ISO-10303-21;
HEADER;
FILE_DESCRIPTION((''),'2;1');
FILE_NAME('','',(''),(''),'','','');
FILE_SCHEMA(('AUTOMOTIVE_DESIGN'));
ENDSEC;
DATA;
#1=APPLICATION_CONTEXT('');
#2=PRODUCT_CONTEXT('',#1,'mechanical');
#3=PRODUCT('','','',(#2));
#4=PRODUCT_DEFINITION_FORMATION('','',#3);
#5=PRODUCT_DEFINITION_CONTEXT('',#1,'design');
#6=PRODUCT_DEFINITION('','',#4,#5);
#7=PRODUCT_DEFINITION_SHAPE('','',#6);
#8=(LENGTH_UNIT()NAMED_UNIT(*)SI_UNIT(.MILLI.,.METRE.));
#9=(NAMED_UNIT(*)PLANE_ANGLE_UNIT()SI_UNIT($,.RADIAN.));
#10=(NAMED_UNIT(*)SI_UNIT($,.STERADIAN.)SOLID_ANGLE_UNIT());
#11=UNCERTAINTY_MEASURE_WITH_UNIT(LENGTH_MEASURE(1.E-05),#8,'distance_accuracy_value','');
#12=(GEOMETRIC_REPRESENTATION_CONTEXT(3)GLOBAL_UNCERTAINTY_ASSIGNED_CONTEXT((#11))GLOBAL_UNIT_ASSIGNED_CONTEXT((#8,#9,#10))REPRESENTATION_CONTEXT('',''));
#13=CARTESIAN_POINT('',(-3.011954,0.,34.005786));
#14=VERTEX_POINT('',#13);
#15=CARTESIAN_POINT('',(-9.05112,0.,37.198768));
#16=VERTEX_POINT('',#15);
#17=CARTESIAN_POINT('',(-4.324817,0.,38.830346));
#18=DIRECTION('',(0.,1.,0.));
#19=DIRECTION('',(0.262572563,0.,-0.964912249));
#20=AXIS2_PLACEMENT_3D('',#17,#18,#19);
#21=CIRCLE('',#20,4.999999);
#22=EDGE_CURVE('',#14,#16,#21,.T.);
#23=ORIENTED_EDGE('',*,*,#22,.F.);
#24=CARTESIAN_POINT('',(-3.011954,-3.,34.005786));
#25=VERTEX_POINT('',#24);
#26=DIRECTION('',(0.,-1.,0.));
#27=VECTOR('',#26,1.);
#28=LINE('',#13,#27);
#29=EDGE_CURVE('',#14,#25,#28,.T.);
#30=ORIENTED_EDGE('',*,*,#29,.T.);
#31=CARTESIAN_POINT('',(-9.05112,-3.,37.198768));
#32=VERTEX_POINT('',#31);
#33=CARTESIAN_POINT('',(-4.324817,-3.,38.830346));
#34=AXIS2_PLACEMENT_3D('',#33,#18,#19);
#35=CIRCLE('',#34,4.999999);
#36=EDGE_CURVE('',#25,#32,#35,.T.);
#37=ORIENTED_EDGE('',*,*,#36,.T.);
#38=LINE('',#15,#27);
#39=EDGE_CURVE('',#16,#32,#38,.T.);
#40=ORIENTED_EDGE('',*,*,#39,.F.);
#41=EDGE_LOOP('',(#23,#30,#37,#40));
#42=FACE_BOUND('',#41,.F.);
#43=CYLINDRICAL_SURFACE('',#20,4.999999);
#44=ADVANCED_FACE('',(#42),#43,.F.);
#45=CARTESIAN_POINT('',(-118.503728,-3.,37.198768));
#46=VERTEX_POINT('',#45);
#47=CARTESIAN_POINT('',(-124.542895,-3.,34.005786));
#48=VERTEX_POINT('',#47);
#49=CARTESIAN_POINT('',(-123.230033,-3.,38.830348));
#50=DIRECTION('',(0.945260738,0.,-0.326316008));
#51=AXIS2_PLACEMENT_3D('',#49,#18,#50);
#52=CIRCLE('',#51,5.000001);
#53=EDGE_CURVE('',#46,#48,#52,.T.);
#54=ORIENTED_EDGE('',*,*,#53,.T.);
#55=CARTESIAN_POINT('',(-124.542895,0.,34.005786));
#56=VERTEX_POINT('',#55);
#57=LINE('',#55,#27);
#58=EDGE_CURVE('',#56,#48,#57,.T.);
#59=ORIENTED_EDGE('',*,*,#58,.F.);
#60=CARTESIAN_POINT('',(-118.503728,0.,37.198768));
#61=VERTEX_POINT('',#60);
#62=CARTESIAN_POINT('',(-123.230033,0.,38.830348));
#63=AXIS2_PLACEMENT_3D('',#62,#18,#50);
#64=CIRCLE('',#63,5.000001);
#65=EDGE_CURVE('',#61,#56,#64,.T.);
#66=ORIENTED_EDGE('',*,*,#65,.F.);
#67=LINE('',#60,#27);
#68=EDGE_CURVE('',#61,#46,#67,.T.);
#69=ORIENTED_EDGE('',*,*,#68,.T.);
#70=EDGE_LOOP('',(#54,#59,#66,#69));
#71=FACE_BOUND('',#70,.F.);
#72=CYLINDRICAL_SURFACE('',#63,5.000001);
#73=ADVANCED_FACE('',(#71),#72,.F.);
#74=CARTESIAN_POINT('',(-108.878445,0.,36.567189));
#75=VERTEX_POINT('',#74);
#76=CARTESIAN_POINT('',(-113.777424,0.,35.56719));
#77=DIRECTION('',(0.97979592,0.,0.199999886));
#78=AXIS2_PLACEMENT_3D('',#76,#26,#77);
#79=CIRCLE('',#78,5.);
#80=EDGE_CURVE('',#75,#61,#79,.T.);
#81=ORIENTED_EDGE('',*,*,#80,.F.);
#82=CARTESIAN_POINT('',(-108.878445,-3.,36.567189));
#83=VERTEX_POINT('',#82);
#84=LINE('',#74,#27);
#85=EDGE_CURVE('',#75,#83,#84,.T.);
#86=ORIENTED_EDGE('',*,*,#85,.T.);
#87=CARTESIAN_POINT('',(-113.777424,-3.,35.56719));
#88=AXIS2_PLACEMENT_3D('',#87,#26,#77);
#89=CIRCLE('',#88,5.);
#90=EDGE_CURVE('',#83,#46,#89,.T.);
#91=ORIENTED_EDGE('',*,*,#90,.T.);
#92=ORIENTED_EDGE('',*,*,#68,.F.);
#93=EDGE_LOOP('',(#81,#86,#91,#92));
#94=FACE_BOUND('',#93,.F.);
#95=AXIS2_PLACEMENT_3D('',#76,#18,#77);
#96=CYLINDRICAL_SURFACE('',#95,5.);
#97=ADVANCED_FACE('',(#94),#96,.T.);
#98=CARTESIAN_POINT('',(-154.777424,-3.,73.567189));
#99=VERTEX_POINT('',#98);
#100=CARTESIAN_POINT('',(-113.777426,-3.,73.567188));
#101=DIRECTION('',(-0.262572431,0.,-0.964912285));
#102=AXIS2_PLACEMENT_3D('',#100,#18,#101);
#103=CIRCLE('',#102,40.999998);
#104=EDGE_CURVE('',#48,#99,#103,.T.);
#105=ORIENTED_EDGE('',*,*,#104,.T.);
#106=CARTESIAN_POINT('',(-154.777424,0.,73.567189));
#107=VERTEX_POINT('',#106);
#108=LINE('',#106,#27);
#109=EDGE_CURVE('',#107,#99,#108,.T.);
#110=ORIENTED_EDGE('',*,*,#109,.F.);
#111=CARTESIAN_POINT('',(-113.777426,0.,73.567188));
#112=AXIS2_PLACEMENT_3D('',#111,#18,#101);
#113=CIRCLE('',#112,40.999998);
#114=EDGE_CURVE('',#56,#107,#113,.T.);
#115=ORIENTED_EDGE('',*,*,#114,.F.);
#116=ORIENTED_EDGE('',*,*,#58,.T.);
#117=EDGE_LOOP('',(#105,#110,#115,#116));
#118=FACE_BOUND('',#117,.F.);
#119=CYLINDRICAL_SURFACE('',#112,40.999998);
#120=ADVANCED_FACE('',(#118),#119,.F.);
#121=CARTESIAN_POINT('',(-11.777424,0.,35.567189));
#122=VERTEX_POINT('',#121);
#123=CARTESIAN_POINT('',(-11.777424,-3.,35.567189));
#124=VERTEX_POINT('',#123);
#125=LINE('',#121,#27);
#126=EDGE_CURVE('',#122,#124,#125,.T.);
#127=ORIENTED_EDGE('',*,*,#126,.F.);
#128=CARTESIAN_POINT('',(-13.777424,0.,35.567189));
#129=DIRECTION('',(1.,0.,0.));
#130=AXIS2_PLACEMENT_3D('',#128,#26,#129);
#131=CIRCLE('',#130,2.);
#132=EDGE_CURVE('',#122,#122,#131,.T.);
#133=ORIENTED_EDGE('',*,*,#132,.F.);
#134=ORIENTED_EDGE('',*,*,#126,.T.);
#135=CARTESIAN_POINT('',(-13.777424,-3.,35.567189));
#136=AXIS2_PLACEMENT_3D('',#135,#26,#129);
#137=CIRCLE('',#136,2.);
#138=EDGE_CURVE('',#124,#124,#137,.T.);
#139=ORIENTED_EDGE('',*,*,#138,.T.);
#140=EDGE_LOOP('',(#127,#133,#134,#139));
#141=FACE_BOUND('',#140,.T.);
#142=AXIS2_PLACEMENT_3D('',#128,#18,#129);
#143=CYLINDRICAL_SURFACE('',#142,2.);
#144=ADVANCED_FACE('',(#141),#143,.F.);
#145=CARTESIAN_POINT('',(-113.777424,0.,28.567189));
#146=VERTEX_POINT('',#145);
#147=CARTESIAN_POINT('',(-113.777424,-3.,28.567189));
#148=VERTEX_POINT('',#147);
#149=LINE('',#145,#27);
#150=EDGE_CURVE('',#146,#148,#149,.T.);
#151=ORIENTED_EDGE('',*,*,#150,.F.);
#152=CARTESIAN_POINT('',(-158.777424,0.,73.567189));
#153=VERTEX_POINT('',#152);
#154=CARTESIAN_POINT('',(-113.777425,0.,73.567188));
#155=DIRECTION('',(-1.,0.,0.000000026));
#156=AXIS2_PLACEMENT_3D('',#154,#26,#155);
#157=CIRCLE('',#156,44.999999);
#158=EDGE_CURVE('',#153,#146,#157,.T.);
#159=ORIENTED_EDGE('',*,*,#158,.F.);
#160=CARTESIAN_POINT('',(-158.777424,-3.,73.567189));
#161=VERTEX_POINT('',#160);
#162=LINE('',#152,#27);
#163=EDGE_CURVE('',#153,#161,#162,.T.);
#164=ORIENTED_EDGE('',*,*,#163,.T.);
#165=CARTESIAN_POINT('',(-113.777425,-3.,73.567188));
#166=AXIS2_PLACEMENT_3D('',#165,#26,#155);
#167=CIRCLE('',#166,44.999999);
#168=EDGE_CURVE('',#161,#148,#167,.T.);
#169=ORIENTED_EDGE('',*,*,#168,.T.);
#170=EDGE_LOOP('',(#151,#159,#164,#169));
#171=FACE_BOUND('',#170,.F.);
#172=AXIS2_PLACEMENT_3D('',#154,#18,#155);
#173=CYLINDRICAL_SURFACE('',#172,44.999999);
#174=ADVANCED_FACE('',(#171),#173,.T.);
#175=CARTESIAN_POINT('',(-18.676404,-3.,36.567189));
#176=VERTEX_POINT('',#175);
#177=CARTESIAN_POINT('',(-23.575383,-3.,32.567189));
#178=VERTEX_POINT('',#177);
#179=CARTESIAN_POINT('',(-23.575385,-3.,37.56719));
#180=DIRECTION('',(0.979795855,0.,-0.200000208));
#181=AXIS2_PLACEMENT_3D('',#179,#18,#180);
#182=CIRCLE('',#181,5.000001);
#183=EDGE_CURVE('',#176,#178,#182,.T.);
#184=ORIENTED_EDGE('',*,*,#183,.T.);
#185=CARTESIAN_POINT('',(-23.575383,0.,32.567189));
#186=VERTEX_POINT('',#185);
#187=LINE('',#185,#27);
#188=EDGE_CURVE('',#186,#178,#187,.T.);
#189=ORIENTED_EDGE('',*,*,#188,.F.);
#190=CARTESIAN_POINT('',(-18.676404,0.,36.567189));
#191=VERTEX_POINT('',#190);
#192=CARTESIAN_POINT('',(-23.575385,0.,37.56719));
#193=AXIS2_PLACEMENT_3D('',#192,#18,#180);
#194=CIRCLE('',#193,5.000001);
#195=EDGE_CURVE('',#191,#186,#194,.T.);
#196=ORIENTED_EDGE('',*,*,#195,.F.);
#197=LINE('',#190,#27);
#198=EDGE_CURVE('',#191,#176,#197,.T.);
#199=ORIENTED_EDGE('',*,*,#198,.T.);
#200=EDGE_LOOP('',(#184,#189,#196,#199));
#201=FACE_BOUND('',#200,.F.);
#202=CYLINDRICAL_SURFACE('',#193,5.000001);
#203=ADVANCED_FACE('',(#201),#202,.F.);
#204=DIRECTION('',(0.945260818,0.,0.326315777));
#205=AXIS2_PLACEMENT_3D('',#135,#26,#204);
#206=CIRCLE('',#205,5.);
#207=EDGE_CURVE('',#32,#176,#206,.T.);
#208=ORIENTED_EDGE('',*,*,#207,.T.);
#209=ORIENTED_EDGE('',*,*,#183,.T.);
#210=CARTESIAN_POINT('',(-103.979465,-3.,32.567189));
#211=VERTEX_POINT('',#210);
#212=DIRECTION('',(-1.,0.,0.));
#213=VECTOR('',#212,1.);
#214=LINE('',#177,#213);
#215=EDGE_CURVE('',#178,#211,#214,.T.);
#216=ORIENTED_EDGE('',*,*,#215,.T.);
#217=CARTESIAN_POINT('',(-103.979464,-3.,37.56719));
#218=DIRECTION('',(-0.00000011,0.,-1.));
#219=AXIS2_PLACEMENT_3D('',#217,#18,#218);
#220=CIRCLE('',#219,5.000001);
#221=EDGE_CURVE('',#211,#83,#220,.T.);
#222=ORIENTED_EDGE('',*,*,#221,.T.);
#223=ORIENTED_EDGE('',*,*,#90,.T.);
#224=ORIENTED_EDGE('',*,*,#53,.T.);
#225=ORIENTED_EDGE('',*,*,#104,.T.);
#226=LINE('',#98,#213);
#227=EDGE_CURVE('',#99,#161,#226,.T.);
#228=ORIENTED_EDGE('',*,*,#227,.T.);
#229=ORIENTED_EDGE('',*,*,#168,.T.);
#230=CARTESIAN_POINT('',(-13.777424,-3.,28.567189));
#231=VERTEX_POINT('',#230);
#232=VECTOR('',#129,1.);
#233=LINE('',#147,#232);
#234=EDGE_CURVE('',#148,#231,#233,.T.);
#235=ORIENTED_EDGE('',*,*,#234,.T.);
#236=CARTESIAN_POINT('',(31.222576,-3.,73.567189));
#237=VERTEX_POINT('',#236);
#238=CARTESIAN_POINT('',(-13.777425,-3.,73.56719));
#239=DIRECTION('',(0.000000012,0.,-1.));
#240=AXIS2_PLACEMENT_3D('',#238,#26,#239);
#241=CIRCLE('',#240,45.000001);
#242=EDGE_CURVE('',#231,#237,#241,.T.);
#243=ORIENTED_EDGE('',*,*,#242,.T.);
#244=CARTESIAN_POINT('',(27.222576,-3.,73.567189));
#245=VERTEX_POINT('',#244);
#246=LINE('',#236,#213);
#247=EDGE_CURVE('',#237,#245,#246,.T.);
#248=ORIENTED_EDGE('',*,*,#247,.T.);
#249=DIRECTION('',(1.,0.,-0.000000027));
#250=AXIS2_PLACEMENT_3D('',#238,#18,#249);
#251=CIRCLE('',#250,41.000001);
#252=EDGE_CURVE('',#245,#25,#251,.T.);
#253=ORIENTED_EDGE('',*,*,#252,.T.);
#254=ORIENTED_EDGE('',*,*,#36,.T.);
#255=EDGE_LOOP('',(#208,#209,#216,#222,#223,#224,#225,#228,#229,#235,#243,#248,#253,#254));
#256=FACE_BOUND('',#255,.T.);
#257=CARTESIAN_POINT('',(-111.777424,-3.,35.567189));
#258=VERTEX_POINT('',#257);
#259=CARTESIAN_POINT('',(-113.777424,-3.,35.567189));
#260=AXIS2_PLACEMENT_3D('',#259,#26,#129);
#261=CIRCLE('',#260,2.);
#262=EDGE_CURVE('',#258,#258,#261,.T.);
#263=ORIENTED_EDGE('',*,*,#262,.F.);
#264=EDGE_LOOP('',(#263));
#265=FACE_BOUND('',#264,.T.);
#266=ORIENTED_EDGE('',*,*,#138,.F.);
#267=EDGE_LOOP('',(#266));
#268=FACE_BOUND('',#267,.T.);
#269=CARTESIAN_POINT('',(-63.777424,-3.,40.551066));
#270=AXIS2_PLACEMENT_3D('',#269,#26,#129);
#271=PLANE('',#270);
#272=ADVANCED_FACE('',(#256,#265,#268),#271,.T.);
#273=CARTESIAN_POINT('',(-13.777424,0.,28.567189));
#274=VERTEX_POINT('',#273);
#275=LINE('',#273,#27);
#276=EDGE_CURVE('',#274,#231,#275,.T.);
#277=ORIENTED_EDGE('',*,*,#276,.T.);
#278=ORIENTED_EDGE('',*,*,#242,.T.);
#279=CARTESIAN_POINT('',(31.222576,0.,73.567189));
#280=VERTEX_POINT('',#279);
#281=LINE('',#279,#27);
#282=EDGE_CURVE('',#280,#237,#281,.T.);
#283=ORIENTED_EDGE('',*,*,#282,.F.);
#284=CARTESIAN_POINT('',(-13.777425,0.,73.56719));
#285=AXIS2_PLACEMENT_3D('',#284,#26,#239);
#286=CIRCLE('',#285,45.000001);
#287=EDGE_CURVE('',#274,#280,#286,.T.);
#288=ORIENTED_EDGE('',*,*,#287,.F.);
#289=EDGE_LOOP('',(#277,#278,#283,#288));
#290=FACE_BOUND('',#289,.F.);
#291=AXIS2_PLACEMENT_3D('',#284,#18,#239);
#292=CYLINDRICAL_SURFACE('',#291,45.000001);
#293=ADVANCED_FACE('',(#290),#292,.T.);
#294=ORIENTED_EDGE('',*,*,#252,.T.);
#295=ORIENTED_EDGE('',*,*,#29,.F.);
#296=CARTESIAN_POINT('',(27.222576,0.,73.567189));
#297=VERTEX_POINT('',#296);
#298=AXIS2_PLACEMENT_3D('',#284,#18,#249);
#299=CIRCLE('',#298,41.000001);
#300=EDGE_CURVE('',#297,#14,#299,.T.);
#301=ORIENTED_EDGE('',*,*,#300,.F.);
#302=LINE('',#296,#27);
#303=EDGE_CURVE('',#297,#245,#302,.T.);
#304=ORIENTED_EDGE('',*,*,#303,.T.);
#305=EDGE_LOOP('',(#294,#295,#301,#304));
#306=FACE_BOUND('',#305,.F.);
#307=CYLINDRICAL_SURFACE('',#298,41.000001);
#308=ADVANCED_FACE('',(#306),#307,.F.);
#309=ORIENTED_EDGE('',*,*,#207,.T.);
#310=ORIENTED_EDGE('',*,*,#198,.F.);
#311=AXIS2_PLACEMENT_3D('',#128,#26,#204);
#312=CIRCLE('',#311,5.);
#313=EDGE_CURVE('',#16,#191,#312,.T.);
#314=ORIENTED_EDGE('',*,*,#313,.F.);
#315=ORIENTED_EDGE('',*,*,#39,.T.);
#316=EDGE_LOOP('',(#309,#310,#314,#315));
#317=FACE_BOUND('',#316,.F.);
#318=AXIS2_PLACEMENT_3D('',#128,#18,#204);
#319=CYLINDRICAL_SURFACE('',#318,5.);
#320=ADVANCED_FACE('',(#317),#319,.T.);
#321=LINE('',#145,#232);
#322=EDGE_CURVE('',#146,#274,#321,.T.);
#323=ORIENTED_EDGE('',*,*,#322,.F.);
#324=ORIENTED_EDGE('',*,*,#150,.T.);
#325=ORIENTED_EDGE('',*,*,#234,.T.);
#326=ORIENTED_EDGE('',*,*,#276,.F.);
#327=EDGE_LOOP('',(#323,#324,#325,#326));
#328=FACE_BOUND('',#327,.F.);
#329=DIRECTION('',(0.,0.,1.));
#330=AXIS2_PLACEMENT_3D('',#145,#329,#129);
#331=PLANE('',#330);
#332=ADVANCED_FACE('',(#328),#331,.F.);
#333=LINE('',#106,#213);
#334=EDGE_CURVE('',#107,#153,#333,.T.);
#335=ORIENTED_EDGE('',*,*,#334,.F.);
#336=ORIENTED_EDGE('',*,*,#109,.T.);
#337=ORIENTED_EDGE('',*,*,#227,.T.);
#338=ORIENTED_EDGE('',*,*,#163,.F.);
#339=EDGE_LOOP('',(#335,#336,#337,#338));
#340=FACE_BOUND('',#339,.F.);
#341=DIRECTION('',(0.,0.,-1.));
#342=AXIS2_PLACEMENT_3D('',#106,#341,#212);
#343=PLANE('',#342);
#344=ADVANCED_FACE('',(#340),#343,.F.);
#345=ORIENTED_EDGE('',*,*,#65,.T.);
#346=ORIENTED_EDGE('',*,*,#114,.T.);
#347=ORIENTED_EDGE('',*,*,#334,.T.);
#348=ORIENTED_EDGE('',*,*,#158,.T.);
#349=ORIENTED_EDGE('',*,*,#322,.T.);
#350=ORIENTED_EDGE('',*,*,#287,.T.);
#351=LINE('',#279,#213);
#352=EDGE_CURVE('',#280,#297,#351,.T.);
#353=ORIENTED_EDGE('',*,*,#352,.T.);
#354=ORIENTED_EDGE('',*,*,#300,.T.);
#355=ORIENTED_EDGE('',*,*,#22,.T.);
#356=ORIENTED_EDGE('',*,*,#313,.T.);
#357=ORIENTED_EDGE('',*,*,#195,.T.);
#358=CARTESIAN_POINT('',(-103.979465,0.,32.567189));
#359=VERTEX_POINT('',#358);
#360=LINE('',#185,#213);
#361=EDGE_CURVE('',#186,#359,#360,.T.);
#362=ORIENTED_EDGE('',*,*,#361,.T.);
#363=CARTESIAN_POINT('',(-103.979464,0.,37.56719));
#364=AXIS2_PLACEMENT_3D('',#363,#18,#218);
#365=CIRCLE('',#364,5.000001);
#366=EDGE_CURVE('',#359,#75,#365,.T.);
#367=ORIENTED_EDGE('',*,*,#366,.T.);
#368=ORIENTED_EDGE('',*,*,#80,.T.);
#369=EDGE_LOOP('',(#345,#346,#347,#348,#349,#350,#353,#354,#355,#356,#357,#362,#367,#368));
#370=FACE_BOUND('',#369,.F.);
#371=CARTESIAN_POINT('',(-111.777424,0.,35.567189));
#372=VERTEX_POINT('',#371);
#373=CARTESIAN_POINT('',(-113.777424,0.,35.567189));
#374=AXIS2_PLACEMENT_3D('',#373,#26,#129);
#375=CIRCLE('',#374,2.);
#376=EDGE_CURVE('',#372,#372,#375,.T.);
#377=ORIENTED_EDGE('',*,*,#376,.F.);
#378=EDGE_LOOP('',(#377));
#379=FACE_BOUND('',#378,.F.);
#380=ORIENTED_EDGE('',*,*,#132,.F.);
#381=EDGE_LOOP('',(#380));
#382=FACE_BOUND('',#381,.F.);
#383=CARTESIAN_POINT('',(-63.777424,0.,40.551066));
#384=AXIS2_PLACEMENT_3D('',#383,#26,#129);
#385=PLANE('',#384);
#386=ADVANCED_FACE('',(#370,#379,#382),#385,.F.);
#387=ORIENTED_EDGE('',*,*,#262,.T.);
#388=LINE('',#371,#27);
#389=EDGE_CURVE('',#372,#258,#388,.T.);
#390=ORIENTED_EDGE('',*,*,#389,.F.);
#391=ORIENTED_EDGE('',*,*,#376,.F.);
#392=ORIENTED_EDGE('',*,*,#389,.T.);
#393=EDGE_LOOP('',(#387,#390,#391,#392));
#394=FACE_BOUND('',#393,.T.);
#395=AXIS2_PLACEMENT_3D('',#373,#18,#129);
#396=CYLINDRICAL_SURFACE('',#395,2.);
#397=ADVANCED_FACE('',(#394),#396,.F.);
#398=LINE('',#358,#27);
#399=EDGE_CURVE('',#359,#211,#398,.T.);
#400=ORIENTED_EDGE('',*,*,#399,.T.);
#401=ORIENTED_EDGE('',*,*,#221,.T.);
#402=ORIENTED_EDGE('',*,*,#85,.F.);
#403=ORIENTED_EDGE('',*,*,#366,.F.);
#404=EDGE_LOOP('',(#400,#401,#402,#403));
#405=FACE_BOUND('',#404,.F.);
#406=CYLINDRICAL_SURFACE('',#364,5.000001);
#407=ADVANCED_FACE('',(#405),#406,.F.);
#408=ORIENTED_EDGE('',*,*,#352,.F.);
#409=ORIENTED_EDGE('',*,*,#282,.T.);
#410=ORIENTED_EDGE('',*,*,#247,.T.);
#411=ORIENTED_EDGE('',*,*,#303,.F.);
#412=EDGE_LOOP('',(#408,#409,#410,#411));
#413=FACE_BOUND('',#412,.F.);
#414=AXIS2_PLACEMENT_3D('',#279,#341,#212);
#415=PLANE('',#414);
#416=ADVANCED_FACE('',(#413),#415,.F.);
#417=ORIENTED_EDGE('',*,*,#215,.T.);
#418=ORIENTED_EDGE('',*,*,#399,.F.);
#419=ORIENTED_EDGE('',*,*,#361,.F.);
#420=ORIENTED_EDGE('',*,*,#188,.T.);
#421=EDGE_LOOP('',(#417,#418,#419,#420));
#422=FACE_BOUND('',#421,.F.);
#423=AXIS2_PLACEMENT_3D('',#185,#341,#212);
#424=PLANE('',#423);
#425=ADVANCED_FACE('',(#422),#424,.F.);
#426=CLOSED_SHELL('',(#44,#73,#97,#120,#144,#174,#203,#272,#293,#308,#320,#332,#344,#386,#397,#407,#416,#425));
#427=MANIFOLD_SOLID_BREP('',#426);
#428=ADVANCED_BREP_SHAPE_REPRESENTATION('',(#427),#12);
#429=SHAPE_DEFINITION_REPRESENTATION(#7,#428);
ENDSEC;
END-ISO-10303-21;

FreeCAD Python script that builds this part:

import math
import FreeCAD as App
import Part
import Sketcher
from FreeCAD import Vector

doc = App.newDocument("Part")
params = doc.addObject("Spreadsheet::Sheet", "Params")
for row, (alias, value) in enumerate([
    ("sketch1_diameter", "4 mm"),
    ("sketch1_radius", "44.999999 mm"),
    ("sketch1_radius2", "41.000001 mm"),
    ("sketch1_radius3", "4.999999 mm"),
    ("sketch1_width", "100 mm"),
    ("pad1_length", "3 mm"),
], start=1):
    params.set(f"A{row}", alias)
    params.set(f"B{row}", "=" + value)
    params.setAlias(f"B{row}", alias)

body = doc.addObject("PartDesign::Body", "Body")

# Sketch on XZ plane
sketch1 = body.newObject("Sketcher::SketchObject", "Sketch")
sketch1.AttachmentSupport = (doc.getObject("XZ_Plane"), [""])
sketch1.MapMode = "FlatFace"
sketch1.addGeometry([
    Part.LineSegment(Vector(-154.8, 73.6, 0), Vector(-158.8, 73.6, 0)),  # 0
    Part.ArcOfCircle(Part.Circle(Vector(-113.8, 73.6, 0), Vector(0, 0, 1), 45), math.radians(180), math.radians(270)),  # 1
    Part.LineSegment(Vector(-113.8, 28.6, 0), Vector(-13.8, 28.6, 0)),  # 2
    Part.ArcOfCircle(Part.Circle(Vector(-13.8, 73.6, 0), Vector(0, 0, 1), 45), math.radians(-90), math.radians(0)),  # 3
    Part.LineSegment(Vector(31.2, 73.6, 0), Vector(27.2, 73.6, 0)),  # 4
    Part.ArcOfCircle(Part.Circle(Vector(-13.8, 73.6, 0), Vector(0, 0, 1), 41), math.radians(-75), math.radians(0)),  # 5
    Part.ArcOfCircle(Part.Circle(Vector(-4.3, 38.8, 0), Vector(0, 0, 1), 5), math.radians(-161), math.radians(-75)),  # 6
    Part.ArcOfCircle(Part.Circle(Vector(-13.8, 35.6, 0), Vector(0, 0, 1), 5), math.radians(19), math.radians(168)),  # 7
    Part.ArcOfCircle(Part.Circle(Vector(-23.6, 37.6, 0), Vector(0, 0, 1), 5), math.radians(-90), math.radians(-12)),  # 8
    Part.LineSegment(Vector(-23.6, 32.6, 0), Vector(-104, 32.6, 0)),  # 9
    Part.ArcOfCircle(Part.Circle(Vector(-104, 37.6, 0), Vector(0, 0, 1), 5), math.radians(-168), math.radians(-90)),  # 10
    Part.ArcOfCircle(Part.Circle(Vector(-113.8, 35.6, 0), Vector(0, 0, 1), 5), math.radians(12), math.radians(161)),  # 11
    Part.ArcOfCircle(Part.Circle(Vector(-123.2, 38.8, 0), Vector(0, 0, 1), 5), math.radians(-105), math.radians(-19)),  # 12
    Part.ArcOfCircle(Part.Circle(Vector(-113.8, 73.6, 0), Vector(0, 0, 1), 41), math.radians(180), math.radians(255)),  # 13
    Part.Circle(Vector(-113.8, 35.6, 0), Vector(0, 0, 1), 2),  # 14
    Part.Circle(Vector(-13.8, 35.6, 0), Vector(0, 0, 1), 2),  # 15
], False)
sketch1.addConstraint([
    Sketcher.Constraint("Coincident", 0, 2, 1, 1),
    Sketcher.Constraint("Tangent", 1, 2, 2, 1),
    Sketcher.Constraint("Tangent", 2, 2, 3, 1),
    Sketcher.Constraint("Coincident", 3, 2, 4, 1),
    Sketcher.Constraint("Coincident", 4, 2, 5, 2),
    Sketcher.Constraint("Tangent", 5, 1, 6, 2),
    Sketcher.Constraint("Tangent", 6, 1, 7, 1),
    Sketcher.Constraint("Tangent", 7, 2, 8, 2),
    Sketcher.Constraint("Tangent", 8, 1, 9, 1),
    Sketcher.Constraint("Tangent", 9, 2, 10, 2),
    Sketcher.Constraint("Tangent", 10, 1, 11, 1),
    Sketcher.Constraint("Tangent", 11, 2, 12, 2),
    Sketcher.Constraint("Tangent", 12, 1, 13, 2),
    Sketcher.Constraint("Coincident", 13, 1, 0, 1),
    Sketcher.Constraint("Horizontal", 0),
    Sketcher.Constraint("Horizontal", 2),
    Sketcher.Constraint("Horizontal", 4),
    Sketcher.Constraint("Horizontal", 9),
    Sketcher.Constraint("Coincident", 5, 3, 3, 3),
    Sketcher.Constraint("Coincident", 13, 3, 1, 3),
    Sketcher.Constraint("Coincident", 14, 3, 11, 3),
    Sketcher.Constraint("Coincident", 15, 3, 7, 3),
    Sketcher.Constraint("Equal", 1, 3),
    Sketcher.Constraint("Equal", 6, 7),
    Sketcher.Constraint("Equal", 7, 8),
    Sketcher.Constraint("Equal", 8, 10),
    Sketcher.Constraint("Equal", 10, 11),
    Sketcher.Constraint("Equal", 11, 12),
    Sketcher.Constraint("Equal", 14, 15),
    Sketcher.Constraint("Horizontal", 7, 3, 11, 3),
    Sketcher.Constraint("Horizontal", 6, 3, 12, 3),
    Sketcher.Constraint("Horizontal", 13, 3, 0, 2),
    Sketcher.Constraint("Horizontal", 0, 2, 3, 2),
    Sketcher.Constraint("Horizontal", 5, 1, 12, 1),
    Sketcher.Constraint("Vertical", 5, 3, 7, 3),
    Sketcher.Constraint("Diameter", 14, 4.0),
    Sketcher.Constraint("Radius", 1, 44.999999),
    Sketcher.Constraint("Radius", 5, 41.000001),
    Sketcher.Constraint("Radius", 6, 4.999999),
    Sketcher.Constraint("DistanceX", 2, 1, 2, 2, 100.0),
    Sketcher.Constraint("DistanceY", 7, 3, 3, 3, 38.0),
    Sketcher.Constraint("DistanceY", 7, 3, 8, 3, 2.000001),
    Sketcher.Constraint("DistanceY", -1, 1, 3, 3, 73.56719),
    Sketcher.Constraint("DistanceX", 6, 1, -1, 1, 9.05112),
])
sketch1.setExpression("Constraints[35]", "Params.sketch1_diameter")
sketch1.setExpression("Constraints[36]", "Params.sketch1_radius")
sketch1.setExpression("Constraints[37]", "Params.sketch1_radius2")
sketch1.setExpression("Constraints[38]", "Params.sketch1_radius3")
sketch1.setExpression("Constraints[39]", "Params.sketch1_width")
pad1 = body.newObject("PartDesign::Pad", "Pad")
pad1.Profile = sketch1
pad1.setExpression("Length", "Params.pad1_length")

doc.recompute()
